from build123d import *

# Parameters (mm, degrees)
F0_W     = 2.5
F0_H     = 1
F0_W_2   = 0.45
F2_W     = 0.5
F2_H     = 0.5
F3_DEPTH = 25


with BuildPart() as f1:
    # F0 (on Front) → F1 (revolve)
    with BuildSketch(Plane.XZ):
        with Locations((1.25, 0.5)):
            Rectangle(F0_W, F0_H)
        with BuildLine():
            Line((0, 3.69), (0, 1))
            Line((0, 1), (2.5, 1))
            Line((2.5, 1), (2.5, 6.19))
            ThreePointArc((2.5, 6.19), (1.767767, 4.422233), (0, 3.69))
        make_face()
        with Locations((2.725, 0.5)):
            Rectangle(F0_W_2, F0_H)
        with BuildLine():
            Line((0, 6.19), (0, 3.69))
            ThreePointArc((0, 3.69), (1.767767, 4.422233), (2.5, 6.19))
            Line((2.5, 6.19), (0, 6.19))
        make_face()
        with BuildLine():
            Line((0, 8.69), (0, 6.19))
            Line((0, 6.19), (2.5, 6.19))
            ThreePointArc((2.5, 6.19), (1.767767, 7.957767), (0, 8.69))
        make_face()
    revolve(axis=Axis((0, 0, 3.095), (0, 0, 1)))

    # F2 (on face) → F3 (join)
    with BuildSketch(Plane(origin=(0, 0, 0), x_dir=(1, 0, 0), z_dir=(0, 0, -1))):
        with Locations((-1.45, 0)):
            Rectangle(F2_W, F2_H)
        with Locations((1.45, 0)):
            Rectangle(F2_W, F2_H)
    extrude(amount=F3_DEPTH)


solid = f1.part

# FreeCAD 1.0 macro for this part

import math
import FreeCAD as App
import Part
import Sketcher
Q = App.Units.Quantity


def add_polygon(sketch, points):
    """Adds a closed chain of lines whose ends are joined by coincident constraints."""
    first, n = sketch.GeometryCount, len(points)
    for a, b in zip(points, points[1:] + points[:1]):
        sketch.addGeometry(Part.LineSegment(App.Vector(*a, 0), App.Vector(*b, 0)), False)
    for i in range(n):
        sketch.addConstraint(Sketcher.Constraint("Coincident", first + i, 2, first + (i + 1) % n, 1))

doc = App.newDocument("Part")
body = doc.addObject("PartDesign::Body", "Body")

# Sketch on XZ plane
sketch1 = doc.addObject("Sketcher::SketchObject", "Sketch")
body.addObject(sketch1)
sketch1.AttachmentSupport = (doc.XZ_Plane, [""])
sketch1.MapMode = "FlatFace"
sketch1.addGeometry([
    Part.LineSegment(App.Vector(0, 0, 0), App.Vector(2.95, 0, 0)),  # 0
    Part.LineSegment(App.Vector(2.95, 0, 0), App.Vector(2.95, 1, 0)),  # 1
    Part.LineSegment(App.Vector(2.95, 1, 0), App.Vector(2.5, 1, 0)),  # 2
    Part.LineSegment(App.Vector(2.5, 1, 0), App.Vector(2.5, 6.19, 0)),  # 3
    Part.ArcOfCircle(Part.Circle(App.Vector(0, 6.19, 0), App.Vector(0, 0, 1), 2.5), math.radians(-0.000004), math.radians(90.000004)),  # 4
    Part.LineSegment(App.Vector(0, 8.69, 0), App.Vector(0, 0, 0)),  # 5
], False)
sketch1.addConstraint([
    Sketcher.Constraint("Coincident", 0, 2, 1, 1),
    Sketcher.Constraint("Coincident", 1, 2, 2, 1),
    Sketcher.Constraint("Coincident", 2, 2, 3, 1),
    Sketcher.Constraint("Tangent", 3, 2, 4, 1),
    Sketcher.Constraint("Coincident", 4, 2, 5, 1),
    Sketcher.Constraint("Coincident", 5, 2, 0, 1),
    Sketcher.Constraint("Horizontal", 0),
    Sketcher.Constraint("Vertical", 1),
    Sketcher.Constraint("Horizontal", 2),
    Sketcher.Constraint("Vertical", 3),
    Sketcher.Constraint("Vertical", 5),
    Sketcher.Constraint("Coincident", 5, 2, -1, 1),
    Sketcher.Constraint("PointOnObject", 4, 3, -2),
    Sketcher.Constraint("Radius", 4, Q("2.5 mm")),
    Sketcher.Constraint("DistanceY", 1, 1, 1, 2, Q("1 mm")),
    Sketcher.Constraint("DistanceX", 0, 1, 0, 2, Q("2.95 mm")),
    Sketcher.Constraint("DistanceY", 3, 1, 3, 2, Q("5.19 mm")),
])
revolution = doc.addObject("PartDesign::Revolution", "Revolution")
body.addObject(revolution)
revolution.Profile = sketch1
revolution.ReferenceAxis = (sketch1, ["V_Axis"])
revolution.Angle = 360

# Sketch on XY plane
sketch2 = doc.addObject("Sketcher::SketchObject", "Sketch001")
body.addObject(sketch2)
sketch2.AttachmentSupport = (doc.XY_Plane, [""])
sketch2.MapMode = "FlatFace"
add_polygon(sketch2, [(-1.7, -0.25), (-1.7, 0.25), (-1.2, 0.25), (-1.2, -0.25)])  # lines 0-3
add_polygon(sketch2, [(1.2, -0.25), (1.2, 0.25), (1.7, 0.25), (1.7, -0.25)])  # lines 4-7
sketch2.addConstraint([
    Sketcher.Constraint("Vertical", 0),
    Sketcher.Constraint("Horizontal", 1),
    Sketcher.Constraint("Vertical", 2),
    Sketcher.Constraint("Horizontal", 3),
    Sketcher.Constraint("Vertical", 4),
    Sketcher.Constraint("Horizontal", 5),
    Sketcher.Constraint("Vertical", 6),
    Sketcher.Constraint("Horizontal", 7),
    Sketcher.Constraint("Symmetric", 2, 2, 4, 2, -1, 1),
    Sketcher.Constraint("Symmetric", 0, 2, 6, 2, -1, 1),
    Sketcher.Constraint("Horizontal", 1, 2, 4, 2),
    Sketcher.Constraint("Equal", 7, 0),
    Sketcher.Constraint("DistanceX", 1, 1, 1, 2, Q("0.5 mm")),
    Sketcher.Constraint("DistanceX", 0, 2, -1, 1, Q("1.7 mm")),
])
pad1 = doc.addObject("PartDesign::Pad", "Pad")
body.addObject(pad1)
pad1.Profile = sketch2
pad1.Length = 25
pad1.Reversed = True

doc.recompute()
